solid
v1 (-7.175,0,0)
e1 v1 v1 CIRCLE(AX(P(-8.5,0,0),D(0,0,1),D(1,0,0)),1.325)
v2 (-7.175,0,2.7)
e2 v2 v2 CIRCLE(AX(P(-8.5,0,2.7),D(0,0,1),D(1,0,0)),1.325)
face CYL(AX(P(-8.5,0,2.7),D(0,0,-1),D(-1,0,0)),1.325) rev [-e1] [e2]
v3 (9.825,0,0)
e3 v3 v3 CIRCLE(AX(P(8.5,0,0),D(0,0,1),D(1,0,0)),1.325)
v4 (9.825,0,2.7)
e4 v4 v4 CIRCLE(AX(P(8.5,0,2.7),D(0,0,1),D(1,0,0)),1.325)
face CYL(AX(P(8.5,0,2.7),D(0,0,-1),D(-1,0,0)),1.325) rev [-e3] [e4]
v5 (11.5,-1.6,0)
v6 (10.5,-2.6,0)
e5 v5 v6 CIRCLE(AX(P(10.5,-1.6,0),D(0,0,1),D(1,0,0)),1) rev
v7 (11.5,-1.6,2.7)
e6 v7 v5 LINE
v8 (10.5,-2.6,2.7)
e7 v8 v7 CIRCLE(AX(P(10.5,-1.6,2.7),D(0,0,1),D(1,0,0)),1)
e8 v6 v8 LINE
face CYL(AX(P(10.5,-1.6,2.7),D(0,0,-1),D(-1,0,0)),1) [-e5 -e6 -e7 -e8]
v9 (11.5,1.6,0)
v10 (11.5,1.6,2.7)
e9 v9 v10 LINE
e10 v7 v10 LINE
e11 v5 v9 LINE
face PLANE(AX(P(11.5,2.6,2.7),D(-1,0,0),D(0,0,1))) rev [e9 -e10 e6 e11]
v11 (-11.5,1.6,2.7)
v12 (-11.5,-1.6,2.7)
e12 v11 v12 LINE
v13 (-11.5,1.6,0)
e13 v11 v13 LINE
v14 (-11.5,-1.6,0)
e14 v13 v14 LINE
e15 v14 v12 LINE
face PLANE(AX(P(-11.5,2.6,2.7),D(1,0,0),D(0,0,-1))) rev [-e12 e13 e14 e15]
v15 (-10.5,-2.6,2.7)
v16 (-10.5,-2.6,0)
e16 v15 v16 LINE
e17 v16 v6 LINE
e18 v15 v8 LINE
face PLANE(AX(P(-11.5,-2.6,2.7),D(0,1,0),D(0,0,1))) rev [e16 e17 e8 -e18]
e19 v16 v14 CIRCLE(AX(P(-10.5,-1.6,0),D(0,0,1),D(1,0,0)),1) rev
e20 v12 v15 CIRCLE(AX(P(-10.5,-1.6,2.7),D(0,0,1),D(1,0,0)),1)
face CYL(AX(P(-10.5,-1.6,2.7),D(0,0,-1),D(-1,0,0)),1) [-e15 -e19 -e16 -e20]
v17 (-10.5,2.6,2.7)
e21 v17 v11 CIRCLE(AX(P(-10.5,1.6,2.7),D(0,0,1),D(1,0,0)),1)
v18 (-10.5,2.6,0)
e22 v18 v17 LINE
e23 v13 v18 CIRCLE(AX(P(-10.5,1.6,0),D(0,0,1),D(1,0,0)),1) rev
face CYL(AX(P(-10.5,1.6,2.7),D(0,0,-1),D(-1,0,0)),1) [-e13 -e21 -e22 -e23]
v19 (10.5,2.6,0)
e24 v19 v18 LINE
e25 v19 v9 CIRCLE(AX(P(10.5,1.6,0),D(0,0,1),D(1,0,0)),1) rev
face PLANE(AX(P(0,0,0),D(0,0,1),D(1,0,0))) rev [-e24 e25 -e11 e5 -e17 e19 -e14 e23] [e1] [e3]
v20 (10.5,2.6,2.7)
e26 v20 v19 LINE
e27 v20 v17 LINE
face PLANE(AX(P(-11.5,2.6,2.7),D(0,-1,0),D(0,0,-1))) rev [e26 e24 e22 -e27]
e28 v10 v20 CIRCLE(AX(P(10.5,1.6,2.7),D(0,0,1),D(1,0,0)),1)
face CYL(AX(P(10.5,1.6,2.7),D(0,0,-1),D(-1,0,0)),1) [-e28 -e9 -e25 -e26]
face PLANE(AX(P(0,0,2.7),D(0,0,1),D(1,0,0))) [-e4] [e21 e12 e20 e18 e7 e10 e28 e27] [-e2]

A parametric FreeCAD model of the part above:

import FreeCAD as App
import Part
import Sketcher


def edges_at(feature, points):
    """Names of the edges that pass closest to the given points."""
    edges = feature.Shape.Edges
    near = lambda p: min(range(len(edges)), key=lambda i: edges[i].distToShape(Part.Vertex(*p))[0])
    return sorted({f"Edge{near(p) + 1}" for p in points})

doc = App.newDocument("Part")
body = doc.addObject("PartDesign::Body", "Body")

sketch1 = body.newObject("Sketcher::SketchObject", "Sketch")
sketch1.AttachmentSupport = (doc.getObject("XY_Plane"), [""])
sketch1.MapMode = "FlatFace"
sketch1.addGeometry(Part.LineSegment(App.Vector(-11.5, 2.6, 0), App.Vector(-11.5, -2.6, 0)), False)
sketch1.addGeometry(Part.LineSegment(App.Vector(-11.5, -2.6, 0), App.Vector(11.5, -2.6, 0)), False)
sketch1.addGeometry(Part.LineSegment(App.Vector(11.5, -2.6, 0), App.Vector(11.5, 2.6, 0)), False)
sketch1.addGeometry(Part.LineSegment(App.Vector(11.5, 2.6, 0), App.Vector(-11.5, 2.6, 0)), False)
sketch1.addGeometry(Part.Circle(App.Vector(-8.5, 0, 0), App.Vector(0, 0, 1), 1.3), False)
sketch1.addGeometry(Part.Circle(App.Vector(8.5, 0, 0), App.Vector(0, 0, 1), 1.3), False)
sketch1.addConstraint(Sketcher.Constraint("Coincident", 0, 2, 1, 1))
sketch1.addConstraint(Sketcher.Constraint("Coincident", 1, 2, 2, 1))
sketch1.addConstraint(Sketcher.Constraint("Coincident", 2, 2, 3, 1))
sketch1.addConstraint(Sketcher.Constraint("Coincident", 3, 2, 0, 1))
sketch1.addConstraint(Sketcher.Constraint("Vertical", 0))
sketch1.addConstraint(Sketcher.Constraint("Horizontal", 1))
sketch1.addConstraint(Sketcher.Constraint("Vertical", 2))
sketch1.addConstraint(Sketcher.Constraint("Horizontal", 3))
sketch1.addConstraint(Sketcher.Constraint("Equal", 4, 5))
sketch1.addConstraint(Sketcher.Constraint("Symmetric", 4, 3, 5, 3, -1, 1))
sketch1.addConstraint(Sketcher.Constraint("Symmetric", 0, 2, 2, 2, -1, 1))
sketch1.addConstraint(Sketcher.Constraint("PointOnObject", 4, 3, -1))
sketch1.addConstraint(Sketcher.Constraint("Diameter", 4, 2.65))
sketch1.addConstraint(Sketcher.Constraint("DistanceX", 1, 1, 1, 2, 23.0))
sketch1.addConstraint(Sketcher.Constraint("DistanceY", 0, 2, 0, 1, 5.2))
sketch1.addConstraint(Sketcher.Constraint("DistanceX", 4, 3, 5, 3, 17.0))
pad1 = body.newObject("PartDesign::Pad", "Pad")
pad1.Profile = sketch1
pad1.Length = 2.7
doc.recompute()

fillet = body.newObject("PartDesign::Fillet", "Fillet")
fillet.Base = (pad1, edges_at(pad1, [
    (11.5, -2.6, 1.35),
    (-11.5, -2.6, 1.35),
    (-11.5, 2.6, 1.35),
    (11.5, 2.6, 1.35),
]))
fillet.Radius = 1

doc.recompute()
